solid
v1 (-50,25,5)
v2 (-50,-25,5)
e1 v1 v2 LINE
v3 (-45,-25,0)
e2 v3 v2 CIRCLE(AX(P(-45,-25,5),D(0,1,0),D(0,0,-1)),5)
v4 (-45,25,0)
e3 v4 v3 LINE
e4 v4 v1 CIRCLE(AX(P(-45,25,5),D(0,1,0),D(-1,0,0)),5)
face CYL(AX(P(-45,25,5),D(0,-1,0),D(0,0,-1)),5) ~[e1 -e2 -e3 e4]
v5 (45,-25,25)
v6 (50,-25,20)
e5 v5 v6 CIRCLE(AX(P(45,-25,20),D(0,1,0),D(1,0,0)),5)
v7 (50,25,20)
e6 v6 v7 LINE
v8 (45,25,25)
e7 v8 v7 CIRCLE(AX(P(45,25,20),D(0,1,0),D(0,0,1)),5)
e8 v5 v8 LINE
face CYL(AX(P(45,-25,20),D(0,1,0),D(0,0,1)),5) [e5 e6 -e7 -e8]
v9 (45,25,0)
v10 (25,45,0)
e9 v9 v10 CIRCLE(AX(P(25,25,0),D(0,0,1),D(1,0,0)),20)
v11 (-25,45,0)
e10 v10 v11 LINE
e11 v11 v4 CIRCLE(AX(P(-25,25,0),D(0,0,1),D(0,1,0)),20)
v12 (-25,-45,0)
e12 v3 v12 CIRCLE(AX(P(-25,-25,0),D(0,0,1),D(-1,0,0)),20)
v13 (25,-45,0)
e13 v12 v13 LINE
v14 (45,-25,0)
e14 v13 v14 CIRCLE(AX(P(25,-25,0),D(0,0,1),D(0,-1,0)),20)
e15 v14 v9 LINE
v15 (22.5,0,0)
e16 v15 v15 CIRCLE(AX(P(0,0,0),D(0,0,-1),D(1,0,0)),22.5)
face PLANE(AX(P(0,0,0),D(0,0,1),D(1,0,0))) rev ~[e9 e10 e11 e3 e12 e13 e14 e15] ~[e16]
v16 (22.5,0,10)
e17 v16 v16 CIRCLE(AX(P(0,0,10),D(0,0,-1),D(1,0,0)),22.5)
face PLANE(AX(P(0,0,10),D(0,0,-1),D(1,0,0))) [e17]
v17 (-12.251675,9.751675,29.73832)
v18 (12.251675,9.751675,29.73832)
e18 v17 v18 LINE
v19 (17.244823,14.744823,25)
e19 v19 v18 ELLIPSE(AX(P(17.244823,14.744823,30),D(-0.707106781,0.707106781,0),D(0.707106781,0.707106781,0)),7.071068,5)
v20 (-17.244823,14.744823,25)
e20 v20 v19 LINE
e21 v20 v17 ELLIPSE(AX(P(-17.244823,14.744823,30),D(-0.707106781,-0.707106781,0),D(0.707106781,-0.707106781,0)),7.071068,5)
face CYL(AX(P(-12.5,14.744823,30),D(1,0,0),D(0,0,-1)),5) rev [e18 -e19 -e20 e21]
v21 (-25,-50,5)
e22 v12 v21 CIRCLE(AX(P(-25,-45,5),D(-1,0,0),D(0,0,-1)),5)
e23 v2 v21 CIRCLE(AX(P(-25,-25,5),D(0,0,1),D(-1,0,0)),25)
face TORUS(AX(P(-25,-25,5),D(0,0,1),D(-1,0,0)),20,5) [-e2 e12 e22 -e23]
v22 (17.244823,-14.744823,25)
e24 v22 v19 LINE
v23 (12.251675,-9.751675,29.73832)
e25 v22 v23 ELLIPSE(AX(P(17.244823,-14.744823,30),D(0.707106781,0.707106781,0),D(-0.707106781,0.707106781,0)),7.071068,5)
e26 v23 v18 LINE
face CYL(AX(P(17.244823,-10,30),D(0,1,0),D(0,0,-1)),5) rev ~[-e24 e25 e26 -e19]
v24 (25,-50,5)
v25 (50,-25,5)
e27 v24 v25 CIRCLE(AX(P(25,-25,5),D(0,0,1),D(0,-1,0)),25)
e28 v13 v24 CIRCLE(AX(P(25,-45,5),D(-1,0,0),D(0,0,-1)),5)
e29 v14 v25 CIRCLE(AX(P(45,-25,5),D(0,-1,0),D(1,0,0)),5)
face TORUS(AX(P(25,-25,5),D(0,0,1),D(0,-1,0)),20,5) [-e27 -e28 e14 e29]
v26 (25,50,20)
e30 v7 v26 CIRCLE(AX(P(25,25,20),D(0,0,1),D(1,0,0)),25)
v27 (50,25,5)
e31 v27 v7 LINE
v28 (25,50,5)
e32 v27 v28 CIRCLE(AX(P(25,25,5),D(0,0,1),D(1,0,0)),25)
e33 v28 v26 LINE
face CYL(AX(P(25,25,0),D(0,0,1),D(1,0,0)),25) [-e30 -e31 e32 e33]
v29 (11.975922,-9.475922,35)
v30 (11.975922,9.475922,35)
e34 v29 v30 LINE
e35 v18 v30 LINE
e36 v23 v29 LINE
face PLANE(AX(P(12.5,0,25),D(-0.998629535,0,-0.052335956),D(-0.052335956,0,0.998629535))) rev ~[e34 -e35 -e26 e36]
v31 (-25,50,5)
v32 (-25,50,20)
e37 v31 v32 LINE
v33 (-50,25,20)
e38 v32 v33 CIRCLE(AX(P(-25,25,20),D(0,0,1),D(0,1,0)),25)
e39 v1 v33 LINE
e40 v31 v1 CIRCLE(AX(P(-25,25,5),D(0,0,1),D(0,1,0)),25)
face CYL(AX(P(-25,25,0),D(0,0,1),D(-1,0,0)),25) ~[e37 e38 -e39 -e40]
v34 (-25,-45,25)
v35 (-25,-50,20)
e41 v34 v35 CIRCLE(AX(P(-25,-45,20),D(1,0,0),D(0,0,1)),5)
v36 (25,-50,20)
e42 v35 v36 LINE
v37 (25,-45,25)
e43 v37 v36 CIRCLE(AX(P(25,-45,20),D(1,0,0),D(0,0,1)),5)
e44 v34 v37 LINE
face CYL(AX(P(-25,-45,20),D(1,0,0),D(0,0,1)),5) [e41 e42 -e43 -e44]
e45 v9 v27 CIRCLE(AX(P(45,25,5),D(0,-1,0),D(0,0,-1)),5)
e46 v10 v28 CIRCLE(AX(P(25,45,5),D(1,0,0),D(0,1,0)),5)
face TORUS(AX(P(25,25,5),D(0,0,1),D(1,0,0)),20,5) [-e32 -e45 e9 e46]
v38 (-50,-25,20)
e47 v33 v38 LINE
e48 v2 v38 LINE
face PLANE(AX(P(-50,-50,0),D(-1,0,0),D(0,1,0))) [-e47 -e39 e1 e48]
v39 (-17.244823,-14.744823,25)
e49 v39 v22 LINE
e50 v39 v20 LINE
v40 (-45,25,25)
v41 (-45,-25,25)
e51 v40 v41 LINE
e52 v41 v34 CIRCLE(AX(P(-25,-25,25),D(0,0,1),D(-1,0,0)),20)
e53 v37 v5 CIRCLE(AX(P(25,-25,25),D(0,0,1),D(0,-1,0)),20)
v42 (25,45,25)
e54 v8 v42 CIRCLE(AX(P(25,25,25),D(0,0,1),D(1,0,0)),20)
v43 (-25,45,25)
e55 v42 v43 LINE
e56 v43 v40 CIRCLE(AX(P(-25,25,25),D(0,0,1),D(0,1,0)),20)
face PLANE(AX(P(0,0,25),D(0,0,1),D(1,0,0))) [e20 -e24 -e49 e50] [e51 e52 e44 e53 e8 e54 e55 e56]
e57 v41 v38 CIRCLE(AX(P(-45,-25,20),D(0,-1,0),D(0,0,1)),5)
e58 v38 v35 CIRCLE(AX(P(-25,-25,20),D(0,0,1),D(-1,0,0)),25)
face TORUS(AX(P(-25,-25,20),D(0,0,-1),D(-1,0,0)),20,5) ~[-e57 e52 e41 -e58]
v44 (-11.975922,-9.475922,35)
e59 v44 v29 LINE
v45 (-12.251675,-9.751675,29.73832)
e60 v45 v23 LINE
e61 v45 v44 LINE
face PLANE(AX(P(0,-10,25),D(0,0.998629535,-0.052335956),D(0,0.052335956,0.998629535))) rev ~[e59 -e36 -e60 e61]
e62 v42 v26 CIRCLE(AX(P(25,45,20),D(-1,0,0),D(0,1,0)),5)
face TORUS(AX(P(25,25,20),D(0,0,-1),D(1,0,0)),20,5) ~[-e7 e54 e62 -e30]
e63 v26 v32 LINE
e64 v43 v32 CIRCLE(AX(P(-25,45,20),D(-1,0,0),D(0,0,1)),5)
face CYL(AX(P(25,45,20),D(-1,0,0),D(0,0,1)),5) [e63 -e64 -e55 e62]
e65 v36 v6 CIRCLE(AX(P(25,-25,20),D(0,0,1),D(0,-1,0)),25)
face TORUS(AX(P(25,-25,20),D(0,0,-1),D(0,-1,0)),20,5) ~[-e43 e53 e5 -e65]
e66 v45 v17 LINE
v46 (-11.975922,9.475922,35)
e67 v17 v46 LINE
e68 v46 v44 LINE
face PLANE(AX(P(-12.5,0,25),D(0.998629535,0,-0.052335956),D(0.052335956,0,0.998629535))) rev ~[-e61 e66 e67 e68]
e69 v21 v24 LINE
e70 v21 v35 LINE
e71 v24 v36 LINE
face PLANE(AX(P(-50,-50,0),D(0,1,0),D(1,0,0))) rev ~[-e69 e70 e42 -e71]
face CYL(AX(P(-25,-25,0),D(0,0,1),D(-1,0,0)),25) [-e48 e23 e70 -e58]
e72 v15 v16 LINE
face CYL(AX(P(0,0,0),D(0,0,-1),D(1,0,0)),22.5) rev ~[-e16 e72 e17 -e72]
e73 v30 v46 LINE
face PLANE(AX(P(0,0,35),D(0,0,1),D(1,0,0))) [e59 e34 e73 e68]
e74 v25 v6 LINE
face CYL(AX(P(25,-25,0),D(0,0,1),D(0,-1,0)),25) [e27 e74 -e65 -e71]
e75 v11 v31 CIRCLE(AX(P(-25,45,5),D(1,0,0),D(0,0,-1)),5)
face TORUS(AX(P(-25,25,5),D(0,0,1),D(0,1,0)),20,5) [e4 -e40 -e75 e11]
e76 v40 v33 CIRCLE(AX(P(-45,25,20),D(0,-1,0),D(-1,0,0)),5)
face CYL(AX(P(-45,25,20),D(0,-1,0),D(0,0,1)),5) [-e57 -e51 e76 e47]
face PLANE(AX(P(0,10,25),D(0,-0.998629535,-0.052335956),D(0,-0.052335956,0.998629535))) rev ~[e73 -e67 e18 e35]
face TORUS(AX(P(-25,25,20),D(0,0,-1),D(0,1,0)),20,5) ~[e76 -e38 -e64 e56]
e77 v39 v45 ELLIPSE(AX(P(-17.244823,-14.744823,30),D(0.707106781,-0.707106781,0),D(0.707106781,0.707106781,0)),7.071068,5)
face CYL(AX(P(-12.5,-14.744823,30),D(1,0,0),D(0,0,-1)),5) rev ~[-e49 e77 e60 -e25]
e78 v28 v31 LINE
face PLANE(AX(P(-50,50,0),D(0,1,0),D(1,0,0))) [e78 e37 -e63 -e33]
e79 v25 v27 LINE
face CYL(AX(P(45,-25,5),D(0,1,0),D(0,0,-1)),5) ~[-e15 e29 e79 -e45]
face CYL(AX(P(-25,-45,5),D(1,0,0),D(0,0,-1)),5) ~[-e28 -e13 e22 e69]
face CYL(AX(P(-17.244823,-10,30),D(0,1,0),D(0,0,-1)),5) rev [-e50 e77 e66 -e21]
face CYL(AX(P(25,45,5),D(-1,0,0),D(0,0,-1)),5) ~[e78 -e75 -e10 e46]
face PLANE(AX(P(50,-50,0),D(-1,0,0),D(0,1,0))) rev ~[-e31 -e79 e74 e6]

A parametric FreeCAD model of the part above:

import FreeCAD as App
import Part
import Sketcher

V = App.Vector
Q = App.Units.Quantity


def edges_at(feature, points):
    """Names of the edges that pass closest to the given points."""
    edges = feature.Shape.Edges
    near = lambda p: min(range(len(edges)), key=lambda i: edges[i].distToShape(Part.Vertex(*p))[0])
    return sorted({f"Edge{near(p) + 1}" for p in points})


def add_polygon(sketch, points):
    """Adds a closed chain of lines whose ends are joined by coincident constraints."""
    first, n = sketch.GeometryCount, len(points)
    for a, b in zip(points, points[1:] + points[:1]):
        sketch.addGeometry(Part.LineSegment(App.Vector(*a, 0), App.Vector(*b, 0)), False)
    for i in range(n):
        sketch.addConstraint(Sketcher.Constraint("Coincident", first + i, 2, first + (i + 1) % n, 1))

doc = App.newDocument("Part")
body = doc.addObject("PartDesign::Body", "Body")

sketch1 = doc.addObject("Sketcher::SketchObject", "Sketch")
body.addObject(sketch1)
sketch1.AttachmentSupport = (doc.XY_Plane, [""])
sketch1.MapMode = "FlatFace"
add_polygon(sketch1, [(-50, 50), (-50, -50), (50, -50), (50, 50)])
sketch1.addConstraint(Sketcher.Constraint("Vertical", 0))
sketch1.addConstraint(Sketcher.Constraint("Horizontal", 1))
sketch1.addConstraint(Sketcher.Constraint("Vertical", 2))
sketch1.addConstraint(Sketcher.Constraint("Horizontal", 3))
sketch1.addConstraint(Sketcher.Constraint("Symmetric", 0, 2, 2, 2, -1, 1))
sketch1.addConstraint(Sketcher.Constraint("Equal", 3, 0))
sketch1.addConstraint(Sketcher.Constraint("DistanceX", 1, 1, 1, 2, Q("100 mm")))
pad1 = doc.addObject("PartDesign::Pad", "Pad")
body.addObject(pad1)
pad1.Profile = sketch1
pad1.Length = 25
doc.recompute()

fillet = doc.addObject("PartDesign::Fillet", "Fillet")
body.addObject(fillet)
fillet.Base = (pad1, edges_at(pad1, [
    (50, -50, 12.5),
    (-50, -50, 12.5),
    (-50, 50, 12.5),
    (50, 50, 12.5),
]))
fillet.Radius = 25
doc.recompute()

fillet2 = doc.addObject("PartDesign::Fillet", "Fillet001")
body.addObject(fillet2)
fillet2.Base = (fillet, edges_at(fillet, [
    (0, -50, 25),
    (-42.678, -42.678, 25),
    (42.678, -42.678, 25),
    (-50, 0, 25),
    (50, 0, 25),
    (-42.678, 42.678, 25),
    (42.678, 42.678, 25),
    (0, 50, 25),
    (0, -50, 0),
    (-42.678, -42.678, 0),
    (42.678, -42.678, 0),
    (-50, 0, 0),
    (50, 0, 0),
    (-42.678, 42.678, 0),
    (42.678, 42.678, 0),
    (0, 50, 0),
]))
fillet2.Radius = 5

sketch2 = doc.addObject("Sketcher::SketchObject", "Sketch001")
body.addObject(sketch2)
sketch2.AttachmentSupport = (doc.XY_Plane, [""])
sketch2.MapMode = "FlatFace"
sketch2.AttachmentOffset = App.Placement(V(0, 0, 25), App.Rotation())
add_polygon(sketch2, [(-12, 10), (-12, -10), (12, -10), (12, 10)])
sketch2.addConstraint(Sketcher.Constraint("Vertical", 0))
sketch2.addConstraint(Sketcher.Constraint("Horizontal", 1))
sketch2.addConstraint(Sketcher.Constraint("Vertical", 2))
sketch2.addConstraint(Sketcher.Constraint("Horizontal", 3))
sketch2.addConstraint(Sketcher.Constraint("Symmetric", 0, 2, 2, 2, -1, 1))
sketch2.addConstraint(Sketcher.Constraint("DistanceX", 1, 1, 1, 2, Q("25 mm")))
sketch2.addConstraint(Sketcher.Constraint("DistanceY", 0, 2, 0, 1, Q("20 mm")))
pad2 = doc.addObject("PartDesign::Pad", "Pad001")
body.addObject(pad2)
pad2.Profile = sketch2
pad2.Length = 10
pad2.TaperAngle = -3
doc.recompute()

fillet3 = doc.addObject("PartDesign::Fillet", "Fillet002")
body.addObject(fillet3)
fillet3.Base = (pad2, edges_at(pad2, [
    (0, -45, 25),
    (-39.142, -39.142, 25),
    (39.142, -39.142, 25),
    (-45, 0, 25),
    (45, 0, 25),
    (-39.142, 39.142, 25),
    (39.142, 39.142, 25),
    (0, 45, 25),
    (12.5, 0, 25),
    (0, 10, 25),
    (-12.5, 0, 25),
    (0, -10, 25),
]))
fillet3.Radius = 5

sketch3 = doc.addObject("Sketcher::SketchObject", "Sketch002")
body.addObject(sketch3)
sketch3.AttachmentSupport = (doc.XY_Plane, [""])
sketch3.MapMode = "FlatFace"
sketch3.addGeometry(Part.Circle(V(0, 0, 0), V(0, 0, 1), 22), False)
sketch3.addConstraint(Sketcher.Constraint("Coincident", 0, 3, -1, 1))
sketch3.addConstraint(Sketcher.Constraint("Diameter", 0, Q("45 mm")))
pocket1 = doc.addObject("PartDesign::Pocket", "Pocket")
body.addObject(pocket1)
pocket1.Profile = sketch3
pocket1.Length = 10
pocket1.Reversed = True

doc.recompute()
